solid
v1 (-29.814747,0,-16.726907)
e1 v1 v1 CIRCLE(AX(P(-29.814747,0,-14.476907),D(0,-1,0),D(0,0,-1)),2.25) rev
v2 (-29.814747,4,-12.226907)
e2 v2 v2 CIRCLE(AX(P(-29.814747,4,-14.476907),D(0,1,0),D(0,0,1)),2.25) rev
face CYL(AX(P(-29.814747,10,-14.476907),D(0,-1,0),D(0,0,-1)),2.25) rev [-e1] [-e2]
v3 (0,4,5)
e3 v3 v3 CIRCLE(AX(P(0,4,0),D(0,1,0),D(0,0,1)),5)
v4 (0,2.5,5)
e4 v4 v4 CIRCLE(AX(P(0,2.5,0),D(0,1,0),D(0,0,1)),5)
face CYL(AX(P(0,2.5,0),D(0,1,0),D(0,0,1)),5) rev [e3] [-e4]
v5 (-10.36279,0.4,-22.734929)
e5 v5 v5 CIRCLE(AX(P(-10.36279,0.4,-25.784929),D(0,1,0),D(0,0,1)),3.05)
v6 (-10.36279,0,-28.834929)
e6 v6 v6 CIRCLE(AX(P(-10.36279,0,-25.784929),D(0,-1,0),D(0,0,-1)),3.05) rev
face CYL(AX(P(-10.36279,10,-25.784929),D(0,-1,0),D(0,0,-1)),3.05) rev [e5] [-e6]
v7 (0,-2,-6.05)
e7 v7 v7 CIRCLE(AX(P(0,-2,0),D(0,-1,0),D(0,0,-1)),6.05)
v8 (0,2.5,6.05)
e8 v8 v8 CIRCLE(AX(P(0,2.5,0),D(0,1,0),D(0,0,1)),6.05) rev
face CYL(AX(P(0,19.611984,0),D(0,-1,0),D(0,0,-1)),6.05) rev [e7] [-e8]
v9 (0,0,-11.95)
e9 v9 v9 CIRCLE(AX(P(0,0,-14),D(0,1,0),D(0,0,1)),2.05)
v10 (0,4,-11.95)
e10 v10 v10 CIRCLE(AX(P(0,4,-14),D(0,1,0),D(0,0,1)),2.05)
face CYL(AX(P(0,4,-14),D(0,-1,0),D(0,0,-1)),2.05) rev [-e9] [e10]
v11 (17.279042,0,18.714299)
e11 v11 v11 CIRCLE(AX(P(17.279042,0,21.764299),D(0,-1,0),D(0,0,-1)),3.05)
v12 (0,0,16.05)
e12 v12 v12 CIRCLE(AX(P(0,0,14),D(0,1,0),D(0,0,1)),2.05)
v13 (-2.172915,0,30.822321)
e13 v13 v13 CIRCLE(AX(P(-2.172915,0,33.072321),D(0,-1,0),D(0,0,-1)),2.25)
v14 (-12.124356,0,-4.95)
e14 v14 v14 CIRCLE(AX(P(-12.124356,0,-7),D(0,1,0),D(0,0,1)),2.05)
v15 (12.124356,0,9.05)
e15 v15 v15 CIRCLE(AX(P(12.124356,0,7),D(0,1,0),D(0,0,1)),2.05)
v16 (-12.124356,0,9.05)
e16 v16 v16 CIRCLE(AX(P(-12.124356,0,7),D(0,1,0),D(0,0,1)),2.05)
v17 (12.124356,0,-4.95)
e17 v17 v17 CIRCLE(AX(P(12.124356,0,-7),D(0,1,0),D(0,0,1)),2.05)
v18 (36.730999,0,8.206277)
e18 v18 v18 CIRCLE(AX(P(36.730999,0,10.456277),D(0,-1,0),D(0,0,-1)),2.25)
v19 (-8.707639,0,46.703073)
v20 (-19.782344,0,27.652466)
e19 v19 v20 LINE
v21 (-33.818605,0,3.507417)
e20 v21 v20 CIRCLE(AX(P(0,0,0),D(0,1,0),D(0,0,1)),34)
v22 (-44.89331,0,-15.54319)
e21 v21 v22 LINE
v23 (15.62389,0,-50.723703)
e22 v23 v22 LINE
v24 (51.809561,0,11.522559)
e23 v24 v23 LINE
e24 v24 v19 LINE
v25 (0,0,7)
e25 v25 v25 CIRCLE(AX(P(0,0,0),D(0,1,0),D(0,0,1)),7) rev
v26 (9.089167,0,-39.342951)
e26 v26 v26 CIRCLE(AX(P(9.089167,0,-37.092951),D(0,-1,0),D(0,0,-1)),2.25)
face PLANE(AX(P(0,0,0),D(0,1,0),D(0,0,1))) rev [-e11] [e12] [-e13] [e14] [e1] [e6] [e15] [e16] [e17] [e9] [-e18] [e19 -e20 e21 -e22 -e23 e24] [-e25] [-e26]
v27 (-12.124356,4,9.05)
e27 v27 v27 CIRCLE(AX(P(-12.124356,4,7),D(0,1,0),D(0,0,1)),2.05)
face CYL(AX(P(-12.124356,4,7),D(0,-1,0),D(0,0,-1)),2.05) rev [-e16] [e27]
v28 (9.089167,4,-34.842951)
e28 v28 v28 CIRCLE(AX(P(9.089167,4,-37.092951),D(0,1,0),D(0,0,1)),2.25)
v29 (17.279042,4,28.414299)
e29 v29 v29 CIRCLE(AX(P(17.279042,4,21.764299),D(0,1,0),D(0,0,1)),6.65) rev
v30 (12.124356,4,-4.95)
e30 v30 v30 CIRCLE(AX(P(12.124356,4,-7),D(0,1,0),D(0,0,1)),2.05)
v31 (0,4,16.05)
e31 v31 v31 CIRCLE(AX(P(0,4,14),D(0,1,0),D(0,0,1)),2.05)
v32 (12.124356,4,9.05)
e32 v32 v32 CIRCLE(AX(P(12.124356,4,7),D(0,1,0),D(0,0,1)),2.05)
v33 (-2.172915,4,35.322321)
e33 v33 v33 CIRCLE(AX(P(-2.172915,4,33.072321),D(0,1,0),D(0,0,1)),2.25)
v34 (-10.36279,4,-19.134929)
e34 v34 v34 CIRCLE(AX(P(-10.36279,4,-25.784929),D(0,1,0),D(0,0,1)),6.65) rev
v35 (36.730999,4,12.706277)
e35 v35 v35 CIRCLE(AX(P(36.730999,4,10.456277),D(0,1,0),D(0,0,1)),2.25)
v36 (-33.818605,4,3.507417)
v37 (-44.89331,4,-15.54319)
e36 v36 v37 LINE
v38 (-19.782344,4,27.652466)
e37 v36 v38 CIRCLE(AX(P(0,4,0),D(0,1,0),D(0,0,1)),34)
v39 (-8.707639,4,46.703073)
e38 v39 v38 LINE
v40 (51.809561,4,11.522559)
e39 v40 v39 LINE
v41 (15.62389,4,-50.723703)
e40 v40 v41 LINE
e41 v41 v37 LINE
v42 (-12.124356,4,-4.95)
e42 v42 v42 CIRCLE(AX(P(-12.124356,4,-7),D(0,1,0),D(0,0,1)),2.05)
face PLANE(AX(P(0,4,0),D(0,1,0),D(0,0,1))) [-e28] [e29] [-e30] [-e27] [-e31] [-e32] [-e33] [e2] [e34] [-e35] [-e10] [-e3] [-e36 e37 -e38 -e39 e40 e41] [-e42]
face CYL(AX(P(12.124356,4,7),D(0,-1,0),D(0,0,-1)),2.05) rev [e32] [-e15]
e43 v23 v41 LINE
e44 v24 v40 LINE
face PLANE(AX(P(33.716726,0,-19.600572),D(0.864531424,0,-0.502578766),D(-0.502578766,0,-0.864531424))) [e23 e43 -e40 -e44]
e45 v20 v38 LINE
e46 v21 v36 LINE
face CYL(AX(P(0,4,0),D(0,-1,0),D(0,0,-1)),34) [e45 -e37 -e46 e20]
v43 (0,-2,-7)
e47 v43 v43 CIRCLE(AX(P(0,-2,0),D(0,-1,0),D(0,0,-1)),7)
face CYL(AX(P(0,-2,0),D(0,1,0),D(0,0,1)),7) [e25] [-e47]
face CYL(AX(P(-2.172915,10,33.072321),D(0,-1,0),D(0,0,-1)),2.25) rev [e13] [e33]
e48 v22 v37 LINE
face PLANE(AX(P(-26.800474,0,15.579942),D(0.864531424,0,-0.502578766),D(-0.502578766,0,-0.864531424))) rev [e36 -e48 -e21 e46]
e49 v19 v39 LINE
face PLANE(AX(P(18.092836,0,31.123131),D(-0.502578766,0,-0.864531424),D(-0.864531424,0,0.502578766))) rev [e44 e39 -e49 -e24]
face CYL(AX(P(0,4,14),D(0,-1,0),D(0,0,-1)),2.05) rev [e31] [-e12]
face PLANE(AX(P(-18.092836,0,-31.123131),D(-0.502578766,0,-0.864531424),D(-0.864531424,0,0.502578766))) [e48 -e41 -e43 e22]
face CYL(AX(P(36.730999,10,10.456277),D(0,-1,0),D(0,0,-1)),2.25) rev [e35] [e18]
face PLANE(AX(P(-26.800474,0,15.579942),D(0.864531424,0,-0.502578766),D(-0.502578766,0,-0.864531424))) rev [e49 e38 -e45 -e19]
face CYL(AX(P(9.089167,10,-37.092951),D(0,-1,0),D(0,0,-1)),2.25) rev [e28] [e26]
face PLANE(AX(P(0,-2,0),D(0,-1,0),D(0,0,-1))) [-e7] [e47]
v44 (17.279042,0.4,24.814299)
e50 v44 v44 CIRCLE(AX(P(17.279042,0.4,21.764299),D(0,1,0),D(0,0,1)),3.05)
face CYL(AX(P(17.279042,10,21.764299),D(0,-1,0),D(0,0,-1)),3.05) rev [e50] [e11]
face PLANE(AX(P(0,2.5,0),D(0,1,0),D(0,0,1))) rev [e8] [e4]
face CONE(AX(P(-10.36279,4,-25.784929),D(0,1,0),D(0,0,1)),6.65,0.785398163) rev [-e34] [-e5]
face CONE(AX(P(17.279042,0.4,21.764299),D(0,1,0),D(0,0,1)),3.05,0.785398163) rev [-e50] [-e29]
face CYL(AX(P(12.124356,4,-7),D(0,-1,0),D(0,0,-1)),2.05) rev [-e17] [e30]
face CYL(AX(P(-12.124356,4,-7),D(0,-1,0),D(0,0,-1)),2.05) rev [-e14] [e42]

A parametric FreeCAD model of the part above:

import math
import FreeCAD as App
import Part
import Sketcher

V = App.Vector


def edges_at(feature, points):
    """Names of the edges that pass closest to the given points."""
    edges = feature.Shape.Edges
    near = lambda p: min(range(len(edges)), key=lambda i: edges[i].distToShape(Part.Vertex(*p))[0])
    return sorted({f"Edge{near(p) + 1}" for p in points})

doc = App.newDocument("Part")
params = doc.addObject("Spreadsheet::Sheet", "Params")
for row, (alias, value) in enumerate([
    ("sketch1_diameter", "68 mm"),
    ("sketch1_diameter2", "12 mm"),
    ("sketch1_diameter3", "4.1 mm"),
    ("pad1_length", "4 mm"),
    ("sketch2_diameter", "13 mm"),
    ("sketch2_diameter2", "10 mm"),
    ("pad2_length", "1.5 mm"),
    ("sketch3_diameter", "14 mm"),
    ("sketch3_diameter2", "12 mm"),
    ("pad3_length", "2 mm"),
    ("sketch4_radius", "34 mm"),
    ("sketch4_length", "70 mm"),
    ("sketch4_length2", "72 mm"),
    ("pad4_length", "4 mm"),
    ("sketch5_diameter", "4.5 mm"),
    ("sketch5_diameter2", "6.1 mm"),
    ("pocket1_length", "10 mm"),
    ("chamfer_size", "3.6 mm"),
    ("sketch6_diameter", "12.1 mm"),
    ("pocket2_length", "4.5 mm"),
], start=1):
    params.set(f"A{row}", alias)
    params.set(f"B{row}", "=" + value)
    params.setAlias(f"B{row}", alias)

body = doc.addObject("PartDesign::Body", "Body")

# Sketch on XZ plane
sketch1 = body.newObject("Sketcher::SketchObject", "Sketch")
sketch1.AttachmentSupport = (doc.getObject("XZ_Plane"), [""])
sketch1.MapMode = "FlatFace"
sketch1.addGeometry([
    Part.Circle(V(0, 0, 0), V(0, 0, 1), 34),  # 0
    Part.Circle(V(-12.1, -7, 0), V(0, 0, 1), 2),  # 1
    Part.Circle(V(0, -14, 0), V(0, 0, 1), 2),  # 2
    Part.Circle(V(-12.1, 7, 0), V(0, 0, 1), 2),  # 3
    Part.Circle(V(12.1, -7, 0), V(0, 0, 1), 2),  # 4
    Part.Circle(V(0, 0, 0), V(0, 0, 1), 6),  # 5
    Part.Circle(V(0, 14, 0), V(0, 0, 1), 2),  # 6
    Part.Circle(V(12.1, 7, 0), V(0, 0, 1), 2),  # 7
], False)
sketch1.addConstraint([
    Sketcher.Constraint("Coincident", 0, 3, -1, 1),
    Sketcher.Constraint("Coincident", 5, 3, -1, 1),
    Sketcher.Constraint("Equal", 1, 2),
    Sketcher.Constraint("Equal", 2, 3),
    Sketcher.Constraint("Equal", 3, 4),
    Sketcher.Constraint("Equal", 4, 6),
    Sketcher.Constraint("Equal", 6, 7),
    Sketcher.Constraint("Symmetric", 3, 3, 4, 3, -1, 1),
    Sketcher.Constraint("Symmetric", 2, 3, 6, 3, -1, 1),
    Sketcher.Constraint("Symmetric", 1, 3, 7, 3, -1, 1),
    Sketcher.Constraint("Symmetric", 1, 3, 4, 3, -2),
    Sketcher.Constraint("PointOnObject", 2, 3, -2),
    Sketcher.Constraint("Diameter", 0, 68.0),
    Sketcher.Constraint("Diameter", 5, 12.0),
    Sketcher.Constraint("Diameter", 1, 4.1),
    Sketcher.Constraint("DistanceY", 1, 3, -1, 1, 7.0),
    Sketcher.Constraint("DistanceY", 2, 3, -1, 1, 14.0),
    Sketcher.Constraint("DistanceX", 1, 3, 4, 3, 24.248711),
])
sketch1.setExpression("Constraints[12]", "Params.sketch1_diameter")
sketch1.setExpression("Constraints[13]", "Params.sketch1_diameter2")
sketch1.setExpression("Constraints[14]", "Params.sketch1_diameter3")
pad1 = body.newObject("PartDesign::Pad", "Pad")
pad1.Profile = sketch1
pad1.setExpression("Length", "Params.pad1_length")
pad1.Reversed = True

# Sketch on XZ plane
sketch2 = body.newObject("Sketcher::SketchObject", "Sketch001")
sketch2.AttachmentSupport = (doc.getObject("XZ_Plane"), [""])
sketch2.MapMode = "FlatFace"
sketch2.AttachmentOffset = App.Placement(V(0, 0, -4), App.Rotation())
sketch2.addGeometry([
    Part.Circle(V(0, 0, 0), V(0, 0, 1), 6),
    Part.Circle(V(0, 0, 0), V(0, 0, 1), 5),
], False)
sketch2.addConstraint([
    Sketcher.Constraint("Coincident", 0, 3, -1, 1),
    Sketcher.Constraint("Coincident", 1, 3, -1, 1),
    Sketcher.Constraint("Diameter", 0, 13.0),
    Sketcher.Constraint("Diameter", 1, 10.0),
])
sketch2.setExpression("Constraints[2]", "Params.sketch2_diameter")
sketch2.setExpression("Constraints[3]", "Params.sketch2_diameter2")
pad2 = body.newObject("PartDesign::Pad", "Pad001")
pad2.Profile = sketch2
pad2.setExpression("Length", "Params.pad2_length")

# Sketch on XZ plane
sketch3 = body.newObject("Sketcher::SketchObject", "Sketch002")
sketch3.AttachmentSupport = (doc.getObject("XZ_Plane"), [""])
sketch3.MapMode = "FlatFace"
sketch3.AttachmentOffset = App.Placement(V(0, 0, 2), App.Rotation())
sketch3.addGeometry([
    Part.Circle(V(0, 0, 0), V(0, 0, 1), 7),
    Part.Circle(V(0, 0, 0), V(0, 0, 1), 6),
], False)
sketch3.addConstraint([
    Sketcher.Constraint("Coincident", 0, 3, -1, 1),
    Sketcher.Constraint("Coincident", 1, 3, -1, 1),
    Sketcher.Constraint("Diameter", 0, 14.0),
    Sketcher.Constraint("Diameter", 1, 12.0),
])
sketch3.setExpression("Constraints[2]", "Params.sketch3_diameter")
sketch3.setExpression("Constraints[3]", "Params.sketch3_diameter2")
pad3 = body.newObject("PartDesign::Pad", "Pad002")
pad3.Profile = sketch3
pad3.setExpression("Length", "Params.pad3_length")
pad3.Reversed = True

# Sketch on XZ plane
sketch4 = body.newObject("Sketcher::SketchObject", "Sketch003")
sketch4.AttachmentSupport = (doc.getObject("XZ_Plane"), [""])
sketch4.MapMode = "FlatFace"
sketch4.addGeometry([
    Part.LineSegment(V(-9, 47, 0), V(52, 12, 0)),  # 0
    Part.LineSegment(V(52, 12, 0), V(16, -51, 0)),  # 1
    Part.LineSegment(V(16, -51, 0), V(-45, -16, 0)),  # 2
    Part.LineSegment(V(-45, -16, 0), V(-34, 4, 0)),  # 3
    Part.ArcOfCircle(Part.Circle(V(0, 0, 0), V(0, 0, 1), 34), math.radians(174), math.radians(360)),  # 4
    Part.ArcOfCircle(Part.Circle(V(0, 0, 0), V(0, 0, 1), 34), math.radians(0), math.radians(126)),  # 5
    Part.LineSegment(V(-20, 28, 0), V(-9, 47, 0)),  # 6
], False)
sketch4.addConstraint([
    Sketcher.Constraint("Coincident", 0, 2, 1, 1),
    Sketcher.Constraint("Coincident", 1, 2, 2, 1),
    Sketcher.Constraint("Coincident", 2, 2, 3, 1),
    Sketcher.Constraint("Coincident", 3, 2, 4, 1),
    Sketcher.Constraint("Tangent", 4, 2, 5, 1),
    Sketcher.Constraint("Coincident", 5, 2, 6, 1),
    Sketcher.Constraint("Coincident", 6, 2, 0, 1),
    Sketcher.Constraint("Coincident", 4, 3, -1, 1),
    Sketcher.Constraint("Equal", 4, 5),
    Sketcher.Constraint("PointOnObject", 4, 2, -1),
    Sketcher.Constraint("Perpendicular", 0, 1),
    Sketcher.Constraint("Perpendicular", 1, 2),
    Sketcher.Constraint("Perpendicular", 2, 3),
    Sketcher.Constraint("Parallel", 3, 6),
    Sketcher.Constraint("Equal", 0, 2),
    Sketcher.Constraint("Equal", 3, 6),
    Sketcher.Constraint("Radius", 4, 34.0),
    Sketcher.Constraint("Distance", 0, 70.0),
    Sketcher.Constraint("Distance", 1, 72.0),
    Sketcher.Constraint("DistanceX", 2, 2, 1, 2, 60.5172),
    Sketcher.Constraint("Distance", 3, 22.03576),
])
sketch4.setExpression("Constraints[16]", "Params.sketch4_radius")
sketch4.setExpression("Constraints[17]", "Params.sketch4_length")
sketch4.setExpression("Constraints[18]", "Params.sketch4_length2")
pad4 = body.newObject("PartDesign::Pad", "Pad003")
pad4.Profile = sketch4
pad4.setExpression("Length", "Params.pad4_length")
pad4.Reversed = True

# Sketch on XZ plane
sketch5 = body.newObject("Sketcher::SketchObject", "Sketch004")
sketch5.AttachmentSupport = (doc.getObject("XZ_Plane"), [""])
sketch5.MapMode = "FlatFace"
sketch5.addGeometry([
    Part.Circle(V(36.7, 10.5, 0), V(0, 0, 1), 2.2),  # 0
    Part.Circle(V(9.1, -37.1, 0), V(0, 0, 1), 2.2),  # 1
    Part.Circle(V(17.3, 21.8, 0), V(0, 0, 1), 3),  # 2
    Part.Circle(V(-2.2, 33.1, 0), V(0, 0, 1), 2.2),  # 3
    Part.Circle(V(-29.8, -14.5, 0), V(0, 0, 1), 2.2),  # 4
    Part.Circle(V(-10.4, -25.8, 0), V(0, 0, 1), 3),  # 5
], False)
sketch5.addConstraint([
    Sketcher.Constraint("Equal", 0, 1),
    Sketcher.Constraint("Equal", 1, 3),
    Sketcher.Constraint("Equal", 3, 4),
    Sketcher.Constraint("Equal", 2, 5),
    Sketcher.Constraint("Diameter", 0, 4.5),
    Sketcher.Constraint("Diameter", 2, 6.1),
    Sketcher.Constraint("DistanceX", -1, 1, 0, 3, 36.730999),
    Sketcher.Constraint("DistanceY", -1, 1, 2, 3, 21.764299),
    Sketcher.Constraint("DistanceY", 1, 3, -1, 1, 37.092951),
    Sketcher.Constraint("DistanceX", -1, 1, 2, 3, 17.279042),
    Sketcher.Constraint("DistanceY", -1, 1, 3, 3, 33.072321),
    Sketcher.Constraint("DistanceX", 5, 3, -1, 1, 10.36279),
    Sketcher.Constraint("DistanceY", 5, 3, -1, 1, 25.784929),
    Sketcher.Constraint("DistanceY", 1, 3, 0, 3, 47.549228),
    Sketcher.Constraint("DistanceX", 3, 3, 1, 3, 11.262082),
    Sketcher.Constraint("DistanceY", 4, 3, 3, 3, 47.549228),
    Sketcher.Constraint("DistanceX", 4, 3, 2, 3, 47.093789),
    Sketcher.Constraint("DistanceX", -1, 1, 1, 3, 9.089167),
])
sketch5.setExpression("Constraints[4]", "Params.sketch5_diameter")
sketch5.setExpression("Constraints[5]", "Params.sketch5_diameter2")
pocket1 = body.newObject("PartDesign::Pocket", "Pocket")
pocket1.Profile = sketch5
pocket1.setExpression("Length", "Params.pocket1_length")
doc.recompute()

chamfer = body.newObject("PartDesign::Chamfer", "Chamfer")
chamfer.Base = (pocket1, edges_at(pocket1, [(17.279, 4, 24.814), (-10.363, 4, -22.735)]))
chamfer.setExpression("Size", "Params.chamfer_size")

# Sketch on XZ plane
sketch6 = body.newObject("Sketcher::SketchObject", "Sketch005")
sketch6.AttachmentSupport = (doc.getObject("XZ_Plane"), [""])
sketch6.MapMode = "FlatFace"
sketch6.AttachmentOffset = App.Placement(V(0, 0, 2), App.Rotation())
sketch6.addGeometry(Part.Circle(V(0, 0, 0), V(0, 0, 1), 6), False)
sketch6.addConstraint([
    Sketcher.Constraint("Coincident", 0, 3, -1, 1),
    Sketcher.Constraint("Diameter", 0, 12.1),
])
sketch6.setExpression("Constraints[1]", "Params.sketch6_diameter")
pocket2 = body.newObject("PartDesign::Pocket", "Pocket001")
pocket2.Profile = sketch6
pocket2.setExpression("Length", "Params.pocket2_length")

doc.recompute()
